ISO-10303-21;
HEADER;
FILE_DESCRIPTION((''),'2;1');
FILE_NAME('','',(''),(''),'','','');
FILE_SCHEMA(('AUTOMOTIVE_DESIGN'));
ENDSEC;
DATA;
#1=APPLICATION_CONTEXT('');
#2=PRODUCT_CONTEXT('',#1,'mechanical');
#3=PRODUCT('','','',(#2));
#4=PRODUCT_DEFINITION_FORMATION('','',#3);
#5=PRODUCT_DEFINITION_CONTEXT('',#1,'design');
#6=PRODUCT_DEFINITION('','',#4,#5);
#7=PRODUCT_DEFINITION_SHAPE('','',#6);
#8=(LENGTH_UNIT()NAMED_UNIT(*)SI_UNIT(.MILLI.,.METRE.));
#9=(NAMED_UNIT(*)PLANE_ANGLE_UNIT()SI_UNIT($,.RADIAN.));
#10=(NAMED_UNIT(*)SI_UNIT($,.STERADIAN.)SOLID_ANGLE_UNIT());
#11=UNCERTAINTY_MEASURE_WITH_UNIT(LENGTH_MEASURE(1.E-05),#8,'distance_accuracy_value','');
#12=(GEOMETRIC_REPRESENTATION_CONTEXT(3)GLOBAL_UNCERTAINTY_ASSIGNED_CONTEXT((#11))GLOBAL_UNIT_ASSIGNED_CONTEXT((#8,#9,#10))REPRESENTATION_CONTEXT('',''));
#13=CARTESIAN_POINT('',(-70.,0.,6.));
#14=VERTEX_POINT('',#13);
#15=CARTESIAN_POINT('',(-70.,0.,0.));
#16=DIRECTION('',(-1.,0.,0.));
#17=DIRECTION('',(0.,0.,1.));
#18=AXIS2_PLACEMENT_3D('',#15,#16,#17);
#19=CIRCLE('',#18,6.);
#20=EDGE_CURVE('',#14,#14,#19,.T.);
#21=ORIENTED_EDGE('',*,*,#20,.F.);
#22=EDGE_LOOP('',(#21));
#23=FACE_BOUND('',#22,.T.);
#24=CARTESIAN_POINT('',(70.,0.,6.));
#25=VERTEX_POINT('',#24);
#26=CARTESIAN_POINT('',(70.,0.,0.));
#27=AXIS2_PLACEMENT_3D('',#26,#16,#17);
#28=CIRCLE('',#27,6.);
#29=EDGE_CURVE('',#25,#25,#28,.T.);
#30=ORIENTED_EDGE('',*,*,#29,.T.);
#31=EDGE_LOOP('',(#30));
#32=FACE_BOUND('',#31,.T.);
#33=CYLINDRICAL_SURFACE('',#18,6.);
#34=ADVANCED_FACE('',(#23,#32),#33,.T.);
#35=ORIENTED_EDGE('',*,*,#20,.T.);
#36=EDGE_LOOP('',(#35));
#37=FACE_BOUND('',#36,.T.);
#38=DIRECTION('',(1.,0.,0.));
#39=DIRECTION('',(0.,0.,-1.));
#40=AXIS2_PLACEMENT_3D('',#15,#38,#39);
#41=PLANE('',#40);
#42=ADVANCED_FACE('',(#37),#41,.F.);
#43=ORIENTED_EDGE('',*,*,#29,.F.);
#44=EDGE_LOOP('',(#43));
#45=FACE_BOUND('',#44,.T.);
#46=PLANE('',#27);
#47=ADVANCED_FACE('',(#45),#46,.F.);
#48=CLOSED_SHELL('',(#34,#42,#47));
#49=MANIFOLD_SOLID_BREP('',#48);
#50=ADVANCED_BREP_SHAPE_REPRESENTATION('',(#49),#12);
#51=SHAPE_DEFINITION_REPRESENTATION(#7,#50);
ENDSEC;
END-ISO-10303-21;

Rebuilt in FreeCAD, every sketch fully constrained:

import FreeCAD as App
import Part
import Sketcher

V = App.Vector
Q = App.Units.Quantity


def add_polygon(sketch, points):
    """Adds a closed chain of lines whose ends are joined by coincident constraints."""
    first, n = sketch.GeometryCount, len(points)
    for a, b in zip(points, points[1:] + points[:1]):
        sketch.addGeometry(Part.LineSegment(App.Vector(*a, 0), App.Vector(*b, 0)), False)
    for i in range(n):
        sketch.addConstraint(Sketcher.Constraint("Coincident", first + i, 2, first + (i + 1) % n, 1))

doc = App.newDocument("Part")
body = doc.addObject("PartDesign::Body", "Body")

# Sketch on XZ plane
sketch1 = doc.addObject("Sketcher::SketchObject", "Sketch")
body.addObject(sketch1)
sketch1.AttachmentSupport = (doc.XZ_Plane, [""])
sketch1.MapMode = "FlatFace"
add_polygon(sketch1, [(-70, -6), (-70, 0), (70, 0), (70, -6)])  # lines 0-3
sketch1.addConstraint([
    Sketcher.Constraint("Vertical", 0),
    Sketcher.Constraint("Horizontal", 1),
    Sketcher.Constraint("Vertical", 2),
    Sketcher.Constraint("Horizontal", 3),
    Sketcher.Constraint("Symmetric", 0, 2, 1, 2, -1, 1),
    Sketcher.Constraint("DistanceX", 1, 1, 1, 2, Q("140 mm")),
    Sketcher.Constraint("DistanceY", 0, 1, 0, 2, Q("6 mm")),
])
revolution = doc.addObject("PartDesign::Revolution", "Revolution")
body.addObject(revolution)
revolution.Profile = sketch1
revolution.ReferenceAxis = (sketch1, ["H_Axis"])
revolution.Angle = 360

doc.recompute()
